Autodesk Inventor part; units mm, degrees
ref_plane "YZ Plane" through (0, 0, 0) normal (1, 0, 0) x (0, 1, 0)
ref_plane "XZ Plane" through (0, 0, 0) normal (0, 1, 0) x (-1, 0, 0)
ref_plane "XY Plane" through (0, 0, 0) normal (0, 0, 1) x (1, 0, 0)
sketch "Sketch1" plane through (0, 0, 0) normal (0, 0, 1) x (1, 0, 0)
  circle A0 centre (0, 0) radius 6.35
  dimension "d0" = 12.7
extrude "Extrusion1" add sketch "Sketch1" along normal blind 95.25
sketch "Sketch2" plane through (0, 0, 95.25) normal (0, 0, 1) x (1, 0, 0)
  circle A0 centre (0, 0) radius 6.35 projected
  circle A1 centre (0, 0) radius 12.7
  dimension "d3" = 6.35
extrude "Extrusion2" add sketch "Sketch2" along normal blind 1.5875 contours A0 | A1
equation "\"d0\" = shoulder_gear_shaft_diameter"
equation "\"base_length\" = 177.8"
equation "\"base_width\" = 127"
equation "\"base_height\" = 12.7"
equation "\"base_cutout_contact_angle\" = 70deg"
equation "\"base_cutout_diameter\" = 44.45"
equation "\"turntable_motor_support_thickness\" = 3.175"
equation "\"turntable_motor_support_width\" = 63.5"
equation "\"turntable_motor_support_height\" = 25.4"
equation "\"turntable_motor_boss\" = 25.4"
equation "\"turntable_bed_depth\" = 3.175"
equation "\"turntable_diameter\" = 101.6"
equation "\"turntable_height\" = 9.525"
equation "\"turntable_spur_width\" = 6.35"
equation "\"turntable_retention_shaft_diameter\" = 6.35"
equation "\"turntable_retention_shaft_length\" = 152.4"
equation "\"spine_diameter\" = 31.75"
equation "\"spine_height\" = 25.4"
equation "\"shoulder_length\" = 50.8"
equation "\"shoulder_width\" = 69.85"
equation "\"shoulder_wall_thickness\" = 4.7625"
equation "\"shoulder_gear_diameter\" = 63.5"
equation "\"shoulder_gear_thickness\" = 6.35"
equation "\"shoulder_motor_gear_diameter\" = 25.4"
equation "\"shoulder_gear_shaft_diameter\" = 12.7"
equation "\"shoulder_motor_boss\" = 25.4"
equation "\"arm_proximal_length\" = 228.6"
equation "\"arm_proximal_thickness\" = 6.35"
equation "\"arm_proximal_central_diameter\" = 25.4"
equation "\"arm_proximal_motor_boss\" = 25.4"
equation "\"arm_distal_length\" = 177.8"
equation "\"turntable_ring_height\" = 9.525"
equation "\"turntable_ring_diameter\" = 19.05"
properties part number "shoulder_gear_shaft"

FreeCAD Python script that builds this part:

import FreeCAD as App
import Part
import Sketcher
Q = App.Units.Quantity

doc = App.newDocument("Part")
params = doc.addObject("Spreadsheet::Sheet", "Params")
for row, (alias, value) in enumerate([
    ("sketch1_diameter", "0.5 in"),
    ("pad1_length", "3.75 in"),
    ("sketch2_diameter", "1 in"),
    ("pad2_length", "0.0625 in"),
], start=1):
    params.set(f"A{row}", alias)
    params.set(f"B{row}", "=" + value)
    params.setAlias(f"B{row}", alias)

body = doc.addObject("PartDesign::Body", "Body")

sketch1 = body.newObject("Sketcher::SketchObject", "Sketch")
sketch1.AttachmentSupport = (doc.getObject("XY_Plane"), [""])
sketch1.MapMode = "FlatFace"
sketch1.addGeometry(Part.Circle(App.Vector(0, 0, 0), App.Vector(0, 0, 1), 6), False)
sketch1.addConstraint([
    Sketcher.Constraint("Coincident", 0, 3, -1, 1),
    Sketcher.Constraint("Diameter", 0, Q("0.5 in")),
])
sketch1.setExpression("Constraints[1]", "Params.sketch1_diameter")
pad1 = body.newObject("PartDesign::Pad", "Pad")
pad1.Profile = sketch1
pad1.setExpression("Length", "Params.pad1_length")

sketch2 = body.newObject("Sketcher::SketchObject", "Sketch001")
sketch2.AttachmentSupport = (doc.getObject("XY_Plane"), [""])
sketch2.MapMode = "FlatFace"
sketch2.AttachmentOffset = App.Placement(App.Vector(0, 0, 3.75 * 25.4), App.Rotation())
sketch2.addGeometry(Part.Circle(App.Vector(0, 0, 0), App.Vector(0, 0, 1), 13), False)
sketch2.addConstraint([
    Sketcher.Constraint("Coincident", 0, 3, -1, 1),
    Sketcher.Constraint("Diameter", 0, Q("1 in")),
])
sketch2.setExpression("Constraints[1]", "Params.sketch2_diameter")
pad2 = body.newObject("PartDesign::Pad", "Pad001")
pad2.Profile = sketch2
pad2.setExpression("Length", "Params.pad2_length")

doc.recompute()
